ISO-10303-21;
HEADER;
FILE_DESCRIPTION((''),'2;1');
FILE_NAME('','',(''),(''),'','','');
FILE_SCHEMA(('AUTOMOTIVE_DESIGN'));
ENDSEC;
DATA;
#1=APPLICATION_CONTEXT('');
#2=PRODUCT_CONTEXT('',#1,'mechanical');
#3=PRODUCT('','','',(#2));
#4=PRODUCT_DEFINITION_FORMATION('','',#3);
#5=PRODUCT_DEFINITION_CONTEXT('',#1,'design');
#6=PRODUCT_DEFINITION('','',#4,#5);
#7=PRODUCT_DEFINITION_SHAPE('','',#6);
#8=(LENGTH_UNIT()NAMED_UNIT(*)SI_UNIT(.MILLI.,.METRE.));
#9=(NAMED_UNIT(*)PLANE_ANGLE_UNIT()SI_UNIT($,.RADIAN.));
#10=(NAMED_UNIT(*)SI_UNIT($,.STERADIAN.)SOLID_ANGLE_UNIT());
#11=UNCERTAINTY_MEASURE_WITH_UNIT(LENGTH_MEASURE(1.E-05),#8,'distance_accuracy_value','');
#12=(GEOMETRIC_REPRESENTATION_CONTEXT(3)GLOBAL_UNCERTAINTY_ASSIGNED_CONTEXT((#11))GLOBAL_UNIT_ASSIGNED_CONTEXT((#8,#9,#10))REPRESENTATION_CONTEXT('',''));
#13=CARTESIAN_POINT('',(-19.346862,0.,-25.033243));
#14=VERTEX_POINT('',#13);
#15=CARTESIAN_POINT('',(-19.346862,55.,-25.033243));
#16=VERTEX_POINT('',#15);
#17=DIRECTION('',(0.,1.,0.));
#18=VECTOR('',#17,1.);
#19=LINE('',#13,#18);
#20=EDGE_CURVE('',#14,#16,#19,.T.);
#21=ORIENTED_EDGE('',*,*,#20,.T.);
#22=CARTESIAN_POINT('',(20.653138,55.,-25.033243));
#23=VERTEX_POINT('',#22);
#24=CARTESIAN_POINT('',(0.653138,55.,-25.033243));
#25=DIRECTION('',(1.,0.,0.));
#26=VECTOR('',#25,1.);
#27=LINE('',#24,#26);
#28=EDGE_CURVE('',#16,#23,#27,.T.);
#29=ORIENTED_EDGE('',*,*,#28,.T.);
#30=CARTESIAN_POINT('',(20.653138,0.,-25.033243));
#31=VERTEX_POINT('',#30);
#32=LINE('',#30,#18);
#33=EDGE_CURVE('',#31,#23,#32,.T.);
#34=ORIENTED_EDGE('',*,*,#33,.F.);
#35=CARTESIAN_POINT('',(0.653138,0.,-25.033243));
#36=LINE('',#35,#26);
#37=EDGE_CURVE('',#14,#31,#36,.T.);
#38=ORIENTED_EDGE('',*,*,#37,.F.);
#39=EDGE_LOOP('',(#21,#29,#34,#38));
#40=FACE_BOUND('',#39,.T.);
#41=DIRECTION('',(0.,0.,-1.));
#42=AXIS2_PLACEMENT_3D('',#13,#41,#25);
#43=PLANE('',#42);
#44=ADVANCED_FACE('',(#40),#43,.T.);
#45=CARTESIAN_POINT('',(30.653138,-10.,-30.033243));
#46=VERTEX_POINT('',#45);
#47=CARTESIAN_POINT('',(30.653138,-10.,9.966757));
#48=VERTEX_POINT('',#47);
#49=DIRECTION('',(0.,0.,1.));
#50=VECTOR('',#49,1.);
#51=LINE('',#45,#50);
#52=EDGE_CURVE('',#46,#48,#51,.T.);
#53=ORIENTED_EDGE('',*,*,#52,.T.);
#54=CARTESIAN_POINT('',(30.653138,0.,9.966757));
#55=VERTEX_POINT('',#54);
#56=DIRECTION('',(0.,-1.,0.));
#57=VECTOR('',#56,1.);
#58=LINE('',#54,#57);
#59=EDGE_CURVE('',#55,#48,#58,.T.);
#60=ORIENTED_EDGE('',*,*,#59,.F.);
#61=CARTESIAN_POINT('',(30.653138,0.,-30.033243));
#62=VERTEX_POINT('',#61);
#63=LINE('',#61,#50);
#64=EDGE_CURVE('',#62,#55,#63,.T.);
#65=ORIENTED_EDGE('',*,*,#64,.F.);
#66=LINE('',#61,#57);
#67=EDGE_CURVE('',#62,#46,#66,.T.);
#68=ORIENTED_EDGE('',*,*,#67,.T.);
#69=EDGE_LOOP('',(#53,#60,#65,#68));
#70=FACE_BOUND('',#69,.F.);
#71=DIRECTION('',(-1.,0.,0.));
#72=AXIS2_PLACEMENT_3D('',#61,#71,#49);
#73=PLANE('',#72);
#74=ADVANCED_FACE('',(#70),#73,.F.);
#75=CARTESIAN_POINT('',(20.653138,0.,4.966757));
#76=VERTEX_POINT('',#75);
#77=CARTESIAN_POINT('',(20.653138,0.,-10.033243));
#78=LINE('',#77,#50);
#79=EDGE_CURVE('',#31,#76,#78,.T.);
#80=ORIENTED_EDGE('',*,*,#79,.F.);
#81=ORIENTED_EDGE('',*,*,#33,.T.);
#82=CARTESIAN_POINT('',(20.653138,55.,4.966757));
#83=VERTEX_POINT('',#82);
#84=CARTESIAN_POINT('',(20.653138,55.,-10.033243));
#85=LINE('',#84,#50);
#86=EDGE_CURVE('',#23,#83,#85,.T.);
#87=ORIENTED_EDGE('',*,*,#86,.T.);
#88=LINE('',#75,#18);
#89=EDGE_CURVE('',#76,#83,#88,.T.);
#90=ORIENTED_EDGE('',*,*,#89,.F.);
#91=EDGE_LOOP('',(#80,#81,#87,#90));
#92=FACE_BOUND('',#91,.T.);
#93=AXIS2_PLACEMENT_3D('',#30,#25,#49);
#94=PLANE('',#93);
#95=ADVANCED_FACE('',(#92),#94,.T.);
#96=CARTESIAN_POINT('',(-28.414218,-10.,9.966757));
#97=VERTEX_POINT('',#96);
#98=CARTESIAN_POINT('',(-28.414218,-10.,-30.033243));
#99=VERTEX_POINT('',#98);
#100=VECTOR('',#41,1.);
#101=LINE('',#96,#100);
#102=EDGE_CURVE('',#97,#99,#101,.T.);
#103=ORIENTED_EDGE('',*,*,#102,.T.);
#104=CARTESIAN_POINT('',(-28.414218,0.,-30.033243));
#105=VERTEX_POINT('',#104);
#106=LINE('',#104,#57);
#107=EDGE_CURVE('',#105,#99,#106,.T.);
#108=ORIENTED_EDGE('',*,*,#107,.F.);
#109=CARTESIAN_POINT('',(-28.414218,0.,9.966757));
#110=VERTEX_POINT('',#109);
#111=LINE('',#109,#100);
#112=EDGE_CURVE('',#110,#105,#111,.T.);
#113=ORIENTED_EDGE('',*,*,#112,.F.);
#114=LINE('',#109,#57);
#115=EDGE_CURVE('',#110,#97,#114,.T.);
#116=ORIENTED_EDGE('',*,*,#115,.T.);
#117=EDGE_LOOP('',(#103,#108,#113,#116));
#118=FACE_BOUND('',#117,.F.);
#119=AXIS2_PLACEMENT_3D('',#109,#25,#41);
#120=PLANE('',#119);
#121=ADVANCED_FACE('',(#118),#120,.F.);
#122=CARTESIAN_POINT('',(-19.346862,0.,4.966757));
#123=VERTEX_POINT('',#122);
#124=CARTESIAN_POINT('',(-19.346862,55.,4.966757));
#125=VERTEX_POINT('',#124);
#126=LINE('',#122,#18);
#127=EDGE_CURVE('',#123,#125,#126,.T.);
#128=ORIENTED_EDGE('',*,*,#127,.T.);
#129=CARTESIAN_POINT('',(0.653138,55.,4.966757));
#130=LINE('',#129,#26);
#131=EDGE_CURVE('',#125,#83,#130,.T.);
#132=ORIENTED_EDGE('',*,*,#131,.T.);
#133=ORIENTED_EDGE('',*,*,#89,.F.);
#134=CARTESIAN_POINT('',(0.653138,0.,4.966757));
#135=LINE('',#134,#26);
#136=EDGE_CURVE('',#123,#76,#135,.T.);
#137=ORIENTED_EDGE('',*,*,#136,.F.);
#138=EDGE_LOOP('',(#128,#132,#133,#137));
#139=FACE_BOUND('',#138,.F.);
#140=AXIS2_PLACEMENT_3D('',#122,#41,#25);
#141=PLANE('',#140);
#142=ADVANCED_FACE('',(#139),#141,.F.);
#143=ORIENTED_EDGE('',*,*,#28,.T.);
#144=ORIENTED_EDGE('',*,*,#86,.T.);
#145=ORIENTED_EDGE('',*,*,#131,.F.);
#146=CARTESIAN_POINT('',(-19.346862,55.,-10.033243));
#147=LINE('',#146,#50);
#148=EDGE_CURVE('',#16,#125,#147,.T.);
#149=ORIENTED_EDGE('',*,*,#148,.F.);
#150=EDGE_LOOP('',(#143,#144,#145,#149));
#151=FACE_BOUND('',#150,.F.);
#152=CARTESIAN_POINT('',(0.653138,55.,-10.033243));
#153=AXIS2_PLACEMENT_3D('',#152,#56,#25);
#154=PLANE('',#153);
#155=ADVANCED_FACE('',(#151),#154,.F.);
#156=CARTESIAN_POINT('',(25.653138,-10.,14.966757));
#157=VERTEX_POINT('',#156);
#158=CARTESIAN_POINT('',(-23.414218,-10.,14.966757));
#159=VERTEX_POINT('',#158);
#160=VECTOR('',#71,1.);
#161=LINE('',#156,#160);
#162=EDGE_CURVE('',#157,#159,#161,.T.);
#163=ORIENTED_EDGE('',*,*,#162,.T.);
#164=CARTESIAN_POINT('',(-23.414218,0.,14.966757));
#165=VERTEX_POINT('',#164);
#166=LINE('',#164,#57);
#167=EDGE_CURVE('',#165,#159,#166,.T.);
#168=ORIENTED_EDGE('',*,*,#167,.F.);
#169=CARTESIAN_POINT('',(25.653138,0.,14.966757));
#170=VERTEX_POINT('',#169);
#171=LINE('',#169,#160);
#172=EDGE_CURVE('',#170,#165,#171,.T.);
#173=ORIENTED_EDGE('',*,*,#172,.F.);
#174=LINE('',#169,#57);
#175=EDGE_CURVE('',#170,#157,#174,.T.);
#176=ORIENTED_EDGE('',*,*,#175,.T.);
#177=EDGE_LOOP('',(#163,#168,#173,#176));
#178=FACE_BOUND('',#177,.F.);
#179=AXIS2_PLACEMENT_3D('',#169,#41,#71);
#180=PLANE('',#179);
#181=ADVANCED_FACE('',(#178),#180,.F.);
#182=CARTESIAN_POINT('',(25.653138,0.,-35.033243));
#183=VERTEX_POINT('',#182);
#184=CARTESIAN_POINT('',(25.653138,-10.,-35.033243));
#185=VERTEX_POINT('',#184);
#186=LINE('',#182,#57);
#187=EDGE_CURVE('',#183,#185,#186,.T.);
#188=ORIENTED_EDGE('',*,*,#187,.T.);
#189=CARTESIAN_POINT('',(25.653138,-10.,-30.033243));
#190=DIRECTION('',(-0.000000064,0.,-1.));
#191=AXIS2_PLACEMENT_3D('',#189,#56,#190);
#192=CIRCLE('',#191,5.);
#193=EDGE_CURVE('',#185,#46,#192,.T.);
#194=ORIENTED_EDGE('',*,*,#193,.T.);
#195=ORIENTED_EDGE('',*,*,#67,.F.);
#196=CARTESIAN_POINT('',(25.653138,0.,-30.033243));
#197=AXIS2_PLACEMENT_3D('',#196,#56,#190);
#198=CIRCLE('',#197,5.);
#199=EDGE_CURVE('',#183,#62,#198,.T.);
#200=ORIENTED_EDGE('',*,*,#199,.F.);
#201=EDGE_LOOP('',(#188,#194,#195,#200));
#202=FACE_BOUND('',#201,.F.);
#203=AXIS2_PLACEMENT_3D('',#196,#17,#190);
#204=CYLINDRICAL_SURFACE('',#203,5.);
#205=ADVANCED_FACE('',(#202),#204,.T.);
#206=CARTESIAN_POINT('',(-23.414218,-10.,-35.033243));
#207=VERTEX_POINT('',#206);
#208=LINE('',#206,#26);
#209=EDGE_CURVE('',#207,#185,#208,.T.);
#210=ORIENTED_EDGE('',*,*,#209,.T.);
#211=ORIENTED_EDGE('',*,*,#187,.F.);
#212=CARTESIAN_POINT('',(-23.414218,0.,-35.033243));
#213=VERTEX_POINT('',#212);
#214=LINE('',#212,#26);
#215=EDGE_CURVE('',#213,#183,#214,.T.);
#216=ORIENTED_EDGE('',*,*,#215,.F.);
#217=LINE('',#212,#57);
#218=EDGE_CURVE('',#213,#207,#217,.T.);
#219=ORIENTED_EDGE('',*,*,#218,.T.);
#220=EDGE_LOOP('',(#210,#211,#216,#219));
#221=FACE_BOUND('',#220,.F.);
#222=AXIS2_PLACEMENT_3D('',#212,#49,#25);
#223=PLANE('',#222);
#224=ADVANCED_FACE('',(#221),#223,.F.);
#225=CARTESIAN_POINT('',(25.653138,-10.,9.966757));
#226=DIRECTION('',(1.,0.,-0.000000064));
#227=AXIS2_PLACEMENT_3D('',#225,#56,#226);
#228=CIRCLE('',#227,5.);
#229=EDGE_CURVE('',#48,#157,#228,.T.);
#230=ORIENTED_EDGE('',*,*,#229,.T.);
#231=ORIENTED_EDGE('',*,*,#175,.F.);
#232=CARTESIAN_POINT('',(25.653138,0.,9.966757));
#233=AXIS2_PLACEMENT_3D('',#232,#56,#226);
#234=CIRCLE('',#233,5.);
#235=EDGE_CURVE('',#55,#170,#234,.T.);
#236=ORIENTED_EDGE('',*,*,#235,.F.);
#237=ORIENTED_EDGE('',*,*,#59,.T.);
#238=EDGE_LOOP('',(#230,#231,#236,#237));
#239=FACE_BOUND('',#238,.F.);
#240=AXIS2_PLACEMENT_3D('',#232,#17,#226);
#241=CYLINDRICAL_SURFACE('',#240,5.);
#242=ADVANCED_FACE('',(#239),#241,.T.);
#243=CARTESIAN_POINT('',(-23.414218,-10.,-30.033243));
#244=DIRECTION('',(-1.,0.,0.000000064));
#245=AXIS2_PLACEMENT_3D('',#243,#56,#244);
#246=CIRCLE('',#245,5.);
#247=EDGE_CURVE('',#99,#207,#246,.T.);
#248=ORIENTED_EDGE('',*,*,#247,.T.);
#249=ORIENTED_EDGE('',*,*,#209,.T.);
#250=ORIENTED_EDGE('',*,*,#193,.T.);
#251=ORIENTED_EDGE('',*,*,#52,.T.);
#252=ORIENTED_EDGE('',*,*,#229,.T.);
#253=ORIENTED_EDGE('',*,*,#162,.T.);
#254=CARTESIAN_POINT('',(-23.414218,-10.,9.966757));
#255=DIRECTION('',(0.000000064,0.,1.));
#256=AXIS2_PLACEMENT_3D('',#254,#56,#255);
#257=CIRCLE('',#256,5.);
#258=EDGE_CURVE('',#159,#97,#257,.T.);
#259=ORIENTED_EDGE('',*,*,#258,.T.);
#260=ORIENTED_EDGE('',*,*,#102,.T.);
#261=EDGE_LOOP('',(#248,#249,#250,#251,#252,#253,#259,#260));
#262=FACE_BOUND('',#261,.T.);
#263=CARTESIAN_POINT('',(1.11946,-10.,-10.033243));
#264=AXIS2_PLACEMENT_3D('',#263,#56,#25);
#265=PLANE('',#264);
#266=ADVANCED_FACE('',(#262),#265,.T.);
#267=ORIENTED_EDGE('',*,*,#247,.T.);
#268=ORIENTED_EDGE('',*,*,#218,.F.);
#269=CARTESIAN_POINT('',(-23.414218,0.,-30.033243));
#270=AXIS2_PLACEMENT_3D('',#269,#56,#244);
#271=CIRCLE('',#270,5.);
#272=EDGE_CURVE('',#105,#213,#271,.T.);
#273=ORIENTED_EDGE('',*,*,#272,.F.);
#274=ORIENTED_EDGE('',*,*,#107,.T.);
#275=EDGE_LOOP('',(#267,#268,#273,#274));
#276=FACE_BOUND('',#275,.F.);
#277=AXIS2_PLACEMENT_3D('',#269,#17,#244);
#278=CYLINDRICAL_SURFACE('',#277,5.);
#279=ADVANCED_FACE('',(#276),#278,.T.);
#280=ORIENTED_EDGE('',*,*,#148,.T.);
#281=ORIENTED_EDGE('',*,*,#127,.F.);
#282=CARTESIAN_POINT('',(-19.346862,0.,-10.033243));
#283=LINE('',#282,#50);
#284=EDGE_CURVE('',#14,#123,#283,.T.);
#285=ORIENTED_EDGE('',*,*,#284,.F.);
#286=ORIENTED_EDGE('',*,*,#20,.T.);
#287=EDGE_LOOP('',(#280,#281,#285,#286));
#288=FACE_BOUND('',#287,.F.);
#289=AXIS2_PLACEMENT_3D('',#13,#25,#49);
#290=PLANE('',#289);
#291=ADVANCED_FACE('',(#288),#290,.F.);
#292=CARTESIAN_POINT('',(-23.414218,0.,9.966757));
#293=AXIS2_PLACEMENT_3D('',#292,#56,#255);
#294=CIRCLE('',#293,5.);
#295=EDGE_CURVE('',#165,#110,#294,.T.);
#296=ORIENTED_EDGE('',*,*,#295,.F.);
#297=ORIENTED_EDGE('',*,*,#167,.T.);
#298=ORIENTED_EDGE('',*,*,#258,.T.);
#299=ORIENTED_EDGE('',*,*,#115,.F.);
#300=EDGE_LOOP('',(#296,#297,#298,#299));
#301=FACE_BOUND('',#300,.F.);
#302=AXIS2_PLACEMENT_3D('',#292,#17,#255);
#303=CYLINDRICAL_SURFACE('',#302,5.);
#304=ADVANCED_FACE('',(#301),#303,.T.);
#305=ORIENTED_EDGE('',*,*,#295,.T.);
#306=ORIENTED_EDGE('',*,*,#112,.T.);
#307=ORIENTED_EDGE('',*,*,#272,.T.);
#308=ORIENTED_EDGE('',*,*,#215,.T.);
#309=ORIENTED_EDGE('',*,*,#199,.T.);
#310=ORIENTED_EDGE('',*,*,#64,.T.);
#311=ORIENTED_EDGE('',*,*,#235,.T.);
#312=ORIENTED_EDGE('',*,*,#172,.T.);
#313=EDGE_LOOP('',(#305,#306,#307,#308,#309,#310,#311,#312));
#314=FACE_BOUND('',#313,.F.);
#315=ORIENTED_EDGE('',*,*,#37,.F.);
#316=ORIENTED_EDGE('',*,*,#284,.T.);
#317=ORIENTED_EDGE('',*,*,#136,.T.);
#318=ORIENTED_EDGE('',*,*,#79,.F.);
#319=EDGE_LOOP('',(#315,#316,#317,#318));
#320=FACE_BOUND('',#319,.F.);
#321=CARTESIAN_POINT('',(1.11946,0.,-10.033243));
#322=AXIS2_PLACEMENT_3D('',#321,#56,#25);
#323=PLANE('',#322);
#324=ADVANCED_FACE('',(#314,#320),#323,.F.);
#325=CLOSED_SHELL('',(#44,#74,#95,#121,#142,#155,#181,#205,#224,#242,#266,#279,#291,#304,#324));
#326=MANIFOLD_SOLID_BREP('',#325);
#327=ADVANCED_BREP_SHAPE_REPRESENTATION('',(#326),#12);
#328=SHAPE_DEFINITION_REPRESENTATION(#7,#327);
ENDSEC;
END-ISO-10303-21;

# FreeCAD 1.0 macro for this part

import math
import FreeCAD as App
import Part
import Sketcher

V = App.Vector
Q = App.Units.Quantity

doc = App.newDocument("Part")
body = doc.addObject("PartDesign::Body", "Body")

# Sketch on XZ plane
sketch1 = body.newObject("Sketcher::SketchObject", "Sketch")
sketch1.AttachmentSupport = (doc.getObject("XZ_Plane"), [""])
sketch1.MapMode = "FlatFace"
sketch1.addGeometry(Part.LineSegment(V(25.7, 15, 0), V(-23.4, 15, 0)), False)
sketch1.addGeometry(Part.ArcOfCircle(Part.Circle(V(-23.4, 10, 0), V(0, 0, 1), 5), math.radians(90), math.radians(180)), False)
sketch1.addGeometry(Part.LineSegment(V(-28.4, 10, 0), V(-28.4, -30, 0)), False)
sketch1.addGeometry(Part.ArcOfCircle(Part.Circle(V(-23.4, -30, 0), V(0, 0, 1), 5), math.radians(180), math.radians(270)), False)
sketch1.addGeometry(Part.LineSegment(V(-23.4, -35, 0), V(25.7, -35, 0)), False)
sketch1.addGeometry(Part.ArcOfCircle(Part.Circle(V(25.7, -30, 0), V(0, 0, 1), 5), math.radians(-90), math.radians(0)), False)
sketch1.addGeometry(Part.LineSegment(V(30.7, -30, 0), V(30.7, 10, 0)), False)
sketch1.addGeometry(Part.ArcOfCircle(Part.Circle(V(25.7, 10, 0), V(0, 0, 1), 5), math.radians(0), math.radians(90)), False)
sketch1.addConstraint(Sketcher.Constraint("Tangent", 0, 2, 1, 1))
sketch1.addConstraint(Sketcher.Constraint("Tangent", 1, 2, 2, 1))
sketch1.addConstraint(Sketcher.Constraint("Tangent", 2, 2, 3, 1))
sketch1.addConstraint(Sketcher.Constraint("Tangent", 3, 2, 4, 1))
sketch1.addConstraint(Sketcher.Constraint("Tangent", 4, 2, 5, 1))
sketch1.addConstraint(Sketcher.Constraint("Tangent", 5, 2, 6, 1))
sketch1.addConstraint(Sketcher.Constraint("Tangent", 6, 2, 7, 1))
sketch1.addConstraint(Sketcher.Constraint("Tangent", 7, 2, 0, 1))
sketch1.addConstraint(Sketcher.Constraint("Horizontal", 0))
sketch1.addConstraint(Sketcher.Constraint("Vertical", 2))
sketch1.addConstraint(Sketcher.Constraint("Horizontal", 4))
sketch1.addConstraint(Sketcher.Constraint("Vertical", 6))
sketch1.addConstraint(Sketcher.Constraint("Equal", 1, 3))
sketch1.addConstraint(Sketcher.Constraint("Equal", 3, 5))
sketch1.addConstraint(Sketcher.Constraint("Equal", 5, 7))
sketch1.addConstraint(Sketcher.Constraint("Radius", 1, Q("5 mm")))
sketch1.addConstraint(Sketcher.Constraint("DistanceY", 2, 2, 2, 1, Q("40 mm")))
sketch1.addConstraint(Sketcher.Constraint("DistanceX", 0, 2, 0, 1, Q("49.067356 mm")))
sketch1.addConstraint(Sketcher.Constraint("DistanceX", 1, 3, -1, 1, Q("23.414218 mm")))
sketch1.addConstraint(Sketcher.Constraint("DistanceY", -1, 1, 1, 3, Q("9.966757 mm")))
pad1 = body.newObject("PartDesign::Pad", "Pad")
pad1.Profile = sketch1
pad1.Length = 10

# Sketch on XZ plane
sketch2 = body.newObject("Sketcher::SketchObject", "Sketch001")
sketch2.AttachmentSupport = (doc.getObject("XZ_Plane"), [""])
sketch2.MapMode = "FlatFace"
sketch2.addGeometry(Part.LineSegment(V(-19, 5, 0), V(-19, -25, 0)), False)
sketch2.addGeometry(Part.LineSegment(V(-19, -25, 0), V(21, -25, 0)), False)
sketch2.addGeometry(Part.LineSegment(V(21, -25, 0), V(21, 5, 0)), False)
sketch2.addGeometry(Part.LineSegment(V(21, 5, 0), V(-19, 5, 0)), False)
sketch2.addConstraint(Sketcher.Constraint("Coincident", 0, 2, 1, 1))
sketch2.addConstraint(Sketcher.Constraint("Coincident", 1, 2, 2, 1))
sketch2.addConstraint(Sketcher.Constraint("Coincident", 2, 2, 3, 1))
sketch2.addConstraint(Sketcher.Constraint("Coincident", 3, 2, 0, 1))
sketch2.addConstraint(Sketcher.Constraint("Vertical", 0))
sketch2.addConstraint(Sketcher.Constraint("Horizontal", 1))
sketch2.addConstraint(Sketcher.Constraint("Vertical", 2))
sketch2.addConstraint(Sketcher.Constraint("Horizontal", 3))
sketch2.addConstraint(Sketcher.Constraint("DistanceX", 1, 1, 1, 2, Q("40 mm")))
sketch2.addConstraint(Sketcher.Constraint("DistanceY", 0, 2, 0, 1, Q("30 mm")))
sketch2.addConstraint(Sketcher.Constraint("DistanceX", 0, 2, -1, 1, Q("19.346862 mm")))
sketch2.addConstraint(Sketcher.Constraint("DistanceY", 0, 2, -1, 1, Q("25.033243 mm")))
pad2 = body.newObject("PartDesign::Pad", "Pad001")
pad2.Profile = sketch2
pad2.Length = 55
pad2.Reversed = True

doc.recompute()
